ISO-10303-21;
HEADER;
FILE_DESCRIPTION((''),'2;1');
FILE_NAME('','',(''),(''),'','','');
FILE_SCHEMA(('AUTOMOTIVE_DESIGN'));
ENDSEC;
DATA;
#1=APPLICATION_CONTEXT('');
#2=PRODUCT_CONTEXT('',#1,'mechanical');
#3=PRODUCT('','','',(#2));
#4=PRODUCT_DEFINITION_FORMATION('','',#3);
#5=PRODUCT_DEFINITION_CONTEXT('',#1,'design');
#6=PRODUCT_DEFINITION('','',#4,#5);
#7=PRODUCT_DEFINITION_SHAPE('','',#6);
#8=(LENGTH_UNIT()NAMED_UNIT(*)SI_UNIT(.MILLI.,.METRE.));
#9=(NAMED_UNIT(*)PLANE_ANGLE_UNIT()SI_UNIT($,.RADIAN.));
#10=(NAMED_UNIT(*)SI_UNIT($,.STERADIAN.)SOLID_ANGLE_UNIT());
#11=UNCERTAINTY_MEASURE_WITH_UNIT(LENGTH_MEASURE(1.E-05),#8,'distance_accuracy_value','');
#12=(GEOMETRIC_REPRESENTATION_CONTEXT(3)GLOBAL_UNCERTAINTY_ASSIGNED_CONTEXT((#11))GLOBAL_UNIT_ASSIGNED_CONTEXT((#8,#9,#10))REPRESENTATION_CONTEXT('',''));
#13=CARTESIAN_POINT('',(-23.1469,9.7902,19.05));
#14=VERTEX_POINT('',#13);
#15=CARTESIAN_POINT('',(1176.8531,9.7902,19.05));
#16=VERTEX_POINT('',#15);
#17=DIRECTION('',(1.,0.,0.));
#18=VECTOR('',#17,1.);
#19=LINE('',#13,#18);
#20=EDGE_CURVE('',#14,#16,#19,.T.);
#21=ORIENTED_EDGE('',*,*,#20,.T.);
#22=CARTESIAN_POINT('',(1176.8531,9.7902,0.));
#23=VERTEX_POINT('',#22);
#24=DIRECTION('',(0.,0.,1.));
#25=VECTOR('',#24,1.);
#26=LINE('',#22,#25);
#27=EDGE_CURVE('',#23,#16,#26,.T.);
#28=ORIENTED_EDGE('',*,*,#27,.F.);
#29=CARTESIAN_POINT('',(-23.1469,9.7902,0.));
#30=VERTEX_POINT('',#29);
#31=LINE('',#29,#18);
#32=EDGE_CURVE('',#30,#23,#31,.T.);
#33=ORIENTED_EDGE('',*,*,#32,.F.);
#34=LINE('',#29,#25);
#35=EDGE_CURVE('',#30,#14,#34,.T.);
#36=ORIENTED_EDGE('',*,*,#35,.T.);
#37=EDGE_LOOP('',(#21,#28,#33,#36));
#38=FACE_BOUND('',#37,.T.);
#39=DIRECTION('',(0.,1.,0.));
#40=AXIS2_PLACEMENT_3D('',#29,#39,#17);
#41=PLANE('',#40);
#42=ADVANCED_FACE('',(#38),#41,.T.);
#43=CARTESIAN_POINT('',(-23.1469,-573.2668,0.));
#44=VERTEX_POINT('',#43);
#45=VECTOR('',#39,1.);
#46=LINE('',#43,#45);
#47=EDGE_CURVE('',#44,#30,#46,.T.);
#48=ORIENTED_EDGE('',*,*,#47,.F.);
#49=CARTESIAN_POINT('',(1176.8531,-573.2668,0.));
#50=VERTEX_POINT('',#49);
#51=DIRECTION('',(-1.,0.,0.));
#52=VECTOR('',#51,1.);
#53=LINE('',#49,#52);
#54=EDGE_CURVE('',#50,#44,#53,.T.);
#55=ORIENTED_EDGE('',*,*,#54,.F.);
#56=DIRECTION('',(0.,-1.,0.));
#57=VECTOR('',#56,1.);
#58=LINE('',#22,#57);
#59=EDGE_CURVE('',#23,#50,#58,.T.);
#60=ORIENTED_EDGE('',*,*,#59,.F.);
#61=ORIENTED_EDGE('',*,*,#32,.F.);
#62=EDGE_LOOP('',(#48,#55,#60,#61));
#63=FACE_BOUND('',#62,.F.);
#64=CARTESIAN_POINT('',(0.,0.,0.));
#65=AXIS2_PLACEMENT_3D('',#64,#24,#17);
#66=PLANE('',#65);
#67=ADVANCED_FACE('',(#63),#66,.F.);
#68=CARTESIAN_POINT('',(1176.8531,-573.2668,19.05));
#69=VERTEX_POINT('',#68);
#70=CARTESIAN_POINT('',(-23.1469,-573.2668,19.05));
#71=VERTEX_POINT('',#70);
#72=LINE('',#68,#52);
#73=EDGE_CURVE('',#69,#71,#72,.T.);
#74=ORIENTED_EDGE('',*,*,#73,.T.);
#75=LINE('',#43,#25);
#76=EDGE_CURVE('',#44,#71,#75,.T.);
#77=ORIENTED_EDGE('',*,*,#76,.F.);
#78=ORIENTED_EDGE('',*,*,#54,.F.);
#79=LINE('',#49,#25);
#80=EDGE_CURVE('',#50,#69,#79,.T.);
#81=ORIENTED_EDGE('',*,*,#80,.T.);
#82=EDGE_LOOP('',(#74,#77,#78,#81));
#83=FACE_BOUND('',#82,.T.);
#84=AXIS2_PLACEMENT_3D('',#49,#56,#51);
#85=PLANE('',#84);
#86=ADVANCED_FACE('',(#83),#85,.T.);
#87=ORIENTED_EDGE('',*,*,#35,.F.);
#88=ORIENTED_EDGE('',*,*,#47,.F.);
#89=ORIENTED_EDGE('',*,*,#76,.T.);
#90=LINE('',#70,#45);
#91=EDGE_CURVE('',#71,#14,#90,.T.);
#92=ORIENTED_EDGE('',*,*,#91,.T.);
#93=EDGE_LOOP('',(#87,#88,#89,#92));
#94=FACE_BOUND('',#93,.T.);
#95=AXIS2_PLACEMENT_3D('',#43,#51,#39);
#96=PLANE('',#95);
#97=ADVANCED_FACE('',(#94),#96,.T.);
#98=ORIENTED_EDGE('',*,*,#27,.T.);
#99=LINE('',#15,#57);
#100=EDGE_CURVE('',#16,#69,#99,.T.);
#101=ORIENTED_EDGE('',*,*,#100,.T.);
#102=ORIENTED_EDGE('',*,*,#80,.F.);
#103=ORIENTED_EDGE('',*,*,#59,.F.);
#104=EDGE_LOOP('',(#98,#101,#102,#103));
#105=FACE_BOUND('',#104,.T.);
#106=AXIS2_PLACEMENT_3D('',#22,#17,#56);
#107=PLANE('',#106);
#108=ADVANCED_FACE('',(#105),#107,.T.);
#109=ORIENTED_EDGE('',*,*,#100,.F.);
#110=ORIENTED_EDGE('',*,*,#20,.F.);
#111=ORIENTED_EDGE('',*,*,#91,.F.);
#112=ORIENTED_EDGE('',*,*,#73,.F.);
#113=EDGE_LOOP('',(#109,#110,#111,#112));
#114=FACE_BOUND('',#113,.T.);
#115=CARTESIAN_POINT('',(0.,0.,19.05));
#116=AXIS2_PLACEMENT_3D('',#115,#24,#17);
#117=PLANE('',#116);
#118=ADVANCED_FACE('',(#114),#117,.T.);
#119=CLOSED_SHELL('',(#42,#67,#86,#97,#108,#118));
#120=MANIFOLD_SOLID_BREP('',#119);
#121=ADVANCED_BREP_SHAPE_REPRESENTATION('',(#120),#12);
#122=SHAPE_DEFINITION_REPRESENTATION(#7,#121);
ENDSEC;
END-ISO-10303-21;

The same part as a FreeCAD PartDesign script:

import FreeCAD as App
import Part
import Sketcher
Q = App.Units.Quantity


def add_polygon(sketch, points):
    """Adds a closed chain of lines whose ends are joined by coincident constraints."""
    first, n = sketch.GeometryCount, len(points)
    for a, b in zip(points, points[1:] + points[:1]):
        sketch.addGeometry(Part.LineSegment(App.Vector(*a, 0), App.Vector(*b, 0)), False)
    for i in range(n):
        sketch.addConstraint(Sketcher.Constraint("Coincident", first + i, 2, first + (i + 1) % n, 1))

doc = App.newDocument("Part")
body = doc.addObject("PartDesign::Body", "Body")

sketch1 = doc.addObject("Sketcher::SketchObject", "Sketch")
body.addObject(sketch1)
sketch1.AttachmentSupport = (doc.XY_Plane, [""])
sketch1.MapMode = "FlatFace"
add_polygon(sketch1, [(1176.8531, 9.7902), (-23.1469, 9.7902), (-23.1469, -573.2668), (1176.8531, -573.2668)])
sketch1.addConstraint([
    Sketcher.Constraint("Horizontal", 0),
    Sketcher.Constraint("Vertical", 1),
    Sketcher.Constraint("Horizontal", 2),
    Sketcher.Constraint("Vertical", 3),
    Sketcher.Constraint("DistanceY", 1, 2, 1, 1, Q("22.955 in")),
    Sketcher.Constraint("DistanceX", 0, 2, 0, 1, Q("47.2441 in")),
    Sketcher.Constraint("DistanceX", 0, 2, -1, 1, Q("0.9113 in")),
    Sketcher.Constraint("DistanceY", -1, 1, 0, 2, Q("9.7902 mm")),
])
pad1 = doc.addObject("PartDesign::Pad", "Pad")
body.addObject(pad1)
pad1.Profile = sketch1
pad1.Length = Q("0.75 in")

doc.recompute()
